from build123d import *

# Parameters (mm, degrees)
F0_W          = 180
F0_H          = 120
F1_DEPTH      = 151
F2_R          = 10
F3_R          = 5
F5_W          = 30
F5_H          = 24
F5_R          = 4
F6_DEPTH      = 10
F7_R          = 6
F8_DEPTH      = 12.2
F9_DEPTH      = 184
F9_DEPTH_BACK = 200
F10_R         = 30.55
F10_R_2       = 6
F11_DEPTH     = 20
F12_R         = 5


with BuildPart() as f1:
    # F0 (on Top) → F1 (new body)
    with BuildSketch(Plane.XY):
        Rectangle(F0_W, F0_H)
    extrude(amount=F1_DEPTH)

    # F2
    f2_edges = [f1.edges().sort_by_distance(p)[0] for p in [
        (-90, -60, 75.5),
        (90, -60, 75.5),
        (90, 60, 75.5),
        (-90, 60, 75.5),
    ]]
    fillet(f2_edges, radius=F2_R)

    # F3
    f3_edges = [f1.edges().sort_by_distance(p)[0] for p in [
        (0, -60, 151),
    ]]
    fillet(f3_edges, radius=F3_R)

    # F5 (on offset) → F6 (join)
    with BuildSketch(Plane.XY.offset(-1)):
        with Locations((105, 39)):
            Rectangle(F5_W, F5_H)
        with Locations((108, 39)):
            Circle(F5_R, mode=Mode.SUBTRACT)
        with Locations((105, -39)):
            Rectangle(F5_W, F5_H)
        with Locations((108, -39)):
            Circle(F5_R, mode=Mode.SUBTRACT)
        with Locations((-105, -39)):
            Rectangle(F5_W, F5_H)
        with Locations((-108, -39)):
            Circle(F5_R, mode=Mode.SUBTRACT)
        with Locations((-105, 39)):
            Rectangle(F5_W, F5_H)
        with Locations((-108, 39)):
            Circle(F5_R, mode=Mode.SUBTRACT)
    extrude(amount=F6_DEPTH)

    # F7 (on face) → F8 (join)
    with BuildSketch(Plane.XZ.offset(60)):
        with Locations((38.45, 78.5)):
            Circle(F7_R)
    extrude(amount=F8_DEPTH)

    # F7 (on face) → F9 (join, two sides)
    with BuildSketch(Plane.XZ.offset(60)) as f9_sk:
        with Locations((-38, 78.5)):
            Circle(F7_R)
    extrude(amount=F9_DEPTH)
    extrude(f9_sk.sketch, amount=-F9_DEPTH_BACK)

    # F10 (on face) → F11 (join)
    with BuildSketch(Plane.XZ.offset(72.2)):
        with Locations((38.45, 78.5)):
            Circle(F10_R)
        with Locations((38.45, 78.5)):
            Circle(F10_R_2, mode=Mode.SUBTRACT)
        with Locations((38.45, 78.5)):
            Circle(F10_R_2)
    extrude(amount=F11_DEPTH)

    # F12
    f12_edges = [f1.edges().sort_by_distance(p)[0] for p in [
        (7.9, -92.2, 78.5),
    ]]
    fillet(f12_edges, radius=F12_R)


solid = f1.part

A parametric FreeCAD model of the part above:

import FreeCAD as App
import Part
import Sketcher
from FreeCAD import Vector
Q = App.Units.Quantity


def edges_at(feature, points):
    """Names of the edges that pass closest to the given points."""
    edges = feature.Shape.Edges
    near = lambda p: min(range(len(edges)), key=lambda i: edges[i].distToShape(Part.Vertex(*p))[0])
    return sorted({f"Edge{near(p) + 1}" for p in points})

doc = App.newDocument("Part")
body = doc.addObject("PartDesign::Body", "Body")

# Sketch on XY plane
sketch1 = doc.addObject("Sketcher::SketchObject", "Sketch")
body.addObject(sketch1)
sketch1.AttachmentSupport = (doc.XY_Plane, [""])
sketch1.MapMode = "FlatFace"
sketch1.addGeometry([
    Part.LineSegment(Vector(-90, 60, 0), Vector(-90, -60, 0)),
    Part.LineSegment(Vector(-90, -60, 0), Vector(90, -60, 0)),
    Part.LineSegment(Vector(90, -60, 0), Vector(90, 60, 0)),
    Part.LineSegment(Vector(90, 60, 0), Vector(-90, 60, 0)),
], False)
sketch1.addConstraint([
    Sketcher.Constraint("Coincident", 0, 2, 1, 1),
    Sketcher.Constraint("Coincident", 1, 2, 2, 1),
    Sketcher.Constraint("Coincident", 2, 2, 3, 1),
    Sketcher.Constraint("Coincident", 3, 2, 0, 1),
    Sketcher.Constraint("Vertical", 0),
    Sketcher.Constraint("Horizontal", 1),
    Sketcher.Constraint("Vertical", 2),
    Sketcher.Constraint("Horizontal", 3),
    Sketcher.Constraint("Symmetric", 0, 2, 2, 2, -1, 1),
    Sketcher.Constraint("DistanceX", 1, 1, 1, 2, Q("180 mm")),
    Sketcher.Constraint("DistanceY", 0, 2, 0, 1, Q("120 mm")),
])
pad1 = doc.addObject("PartDesign::Pad", "Pad")
body.addObject(pad1)
pad1.Profile = sketch1
pad1.Length = 151
doc.recompute()

fillet = doc.addObject("PartDesign::Fillet", "Fillet")
body.addObject(fillet)
fillet.Base = (pad1, edges_at(pad1, [
    (-90, -60, 75.5),
    (90, -60, 75.5),
    (90, 60, 75.5),
    (-90, 60, 75.5),
]))
fillet.Radius = 10
doc.recompute()

fillet2 = doc.addObject("PartDesign::Fillet", "Fillet001")
body.addObject(fillet2)
fillet2.Base = (fillet, edges_at(fillet, [(0, -60, 151)]))
fillet2.Radius = 5

# Sketch on XY plane
sketch2 = doc.addObject("Sketcher::SketchObject", "Sketch001")
body.addObject(sketch2)
sketch2.AttachmentSupport = (doc.XY_Plane, [""])
sketch2.MapMode = "FlatFace"
sketch2.AttachmentOffset = App.Placement(Vector(0, 0, -1), App.Rotation())
sketch2.addGeometry([
    Part.LineSegment(Vector(90, 51, 0), Vector(90, 27, 0)),  # 0
    Part.LineSegment(Vector(90, 27, 0), Vector(120, 27, 0)),  # 1
    Part.LineSegment(Vector(120, 27, 0), Vector(120, 51, 0)),  # 2
    Part.LineSegment(Vector(120, 51, 0), Vector(90, 51, 0)),  # 3
    Part.Circle(Vector(108, 39, 0), Vector(0, 0, 1), 4),  # 4
    Part.LineSegment(Vector(90, -27, 0), Vector(90, -51, 0)),  # 5
    Part.LineSegment(Vector(90, -51, 0), Vector(120, -51, 0)),  # 6
    Part.LineSegment(Vector(120, -51, 0), Vector(120, -27, 0)),  # 7
    Part.LineSegment(Vector(120, -27, 0), Vector(90, -27, 0)),  # 8
    Part.Circle(Vector(108, -39, 0), Vector(0, 0, 1), 4),  # 9
    Part.LineSegment(Vector(-120, -27, 0), Vector(-120, -51, 0)),  # 10
    Part.LineSegment(Vector(-120, -51, 0), Vector(-90, -51, 0)),  # 11
    Part.LineSegment(Vector(-90, -51, 0), Vector(-90, -27, 0)),  # 12
    Part.LineSegment(Vector(-90, -27, 0), Vector(-120, -27, 0)),  # 13
    Part.Circle(Vector(-108, -39, 0), Vector(0, 0, 1), 4),  # 14
    Part.LineSegment(Vector(-120, 51, 0), Vector(-120, 27, 0)),  # 15
    Part.LineSegment(Vector(-120, 27, 0), Vector(-90, 27, 0)),  # 16
    Part.LineSegment(Vector(-90, 27, 0), Vector(-90, 51, 0)),  # 17
    Part.LineSegment(Vector(-90, 51, 0), Vector(-120, 51, 0)),  # 18
    Part.Circle(Vector(-108, 39, 0), Vector(0, 0, 1), 4),  # 19
], False)
sketch2.addConstraint([
    Sketcher.Constraint("Coincident", 0, 2, 1, 1),
    Sketcher.Constraint("Coincident", 1, 2, 2, 1),
    Sketcher.Constraint("Coincident", 2, 2, 3, 1),
    Sketcher.Constraint("Coincident", 3, 2, 0, 1),
    Sketcher.Constraint("Coincident", 5, 2, 6, 1),
    Sketcher.Constraint("Coincident", 6, 2, 7, 1),
    Sketcher.Constraint("Coincident", 7, 2, 8, 1),
    Sketcher.Constraint("Coincident", 8, 2, 5, 1),
    Sketcher.Constraint("Coincident", 10, 2, 11, 1),
    Sketcher.Constraint("Coincident", 11, 2, 12, 1),
    Sketcher.Constraint("Coincident", 12, 2, 13, 1),
    Sketcher.Constraint("Coincident", 13, 2, 10, 1),
    Sketcher.Constraint("Coincident", 15, 2, 16, 1),
    Sketcher.Constraint("Coincident", 16, 2, 17, 1),
    Sketcher.Constraint("Coincident", 17, 2, 18, 1),
    Sketcher.Constraint("Coincident", 18, 2, 15, 1),
    Sketcher.Constraint("Vertical", 0),
    Sketcher.Constraint("Horizontal", 1),
    Sketcher.Constraint("Vertical", 2),
    Sketcher.Constraint("Horizontal", 3),
    Sketcher.Constraint("Vertical", 5),
    Sketcher.Constraint("Horizontal", 6),
    Sketcher.Constraint("Vertical", 7),
    Sketcher.Constraint("Horizontal", 8),
    Sketcher.Constraint("Vertical", 10),
    Sketcher.Constraint("Horizontal", 11),
    Sketcher.Constraint("Vertical", 12),
    Sketcher.Constraint("Horizontal", 13),
    Sketcher.Constraint("Vertical", 15),
    Sketcher.Constraint("Horizontal", 16),
    Sketcher.Constraint("Vertical", 17),
    Sketcher.Constraint("Horizontal", 18),
    Sketcher.Constraint("Equal", 4, 9),
    Sketcher.Constraint("Equal", 9, 14),
    Sketcher.Constraint("Equal", 14, 19),
    Sketcher.Constraint("Symmetric", 4, 3, 14, 3, -1, 1),
    Sketcher.Constraint("Symmetric", 9, 3, 19, 3, -1, 1),
    Sketcher.Constraint("Symmetric", 2, 2, 10, 2, -1, 1),
    Sketcher.Constraint("Symmetric", 0, 2, 12, 2, -1, 1),
    Sketcher.Constraint("Symmetric", 7, 2, 15, 2, -1, 1),
    Sketcher.Constraint("Symmetric", 5, 2, 17, 2, -1, 1),
    Sketcher.Constraint("Symmetric", 9, 3, 14, 3, -2),
    Sketcher.Constraint("Symmetric", 6, 2, 10, 2, -2),
    Sketcher.Constraint("Symmetric", 8, 2, 12, 2, -2),
    Sketcher.Constraint("Diameter", 4, Q("8 mm")),
    Sketcher.Constraint("DistanceX", 1, 1, 1, 2, Q("30 mm")),
    Sketcher.Constraint("DistanceY", 0, 2, 0, 1, Q("24 mm")),
    Sketcher.Constraint("DistanceX", -1, 1, 4, 3, Q("108 mm")),
    Sketcher.Constraint("DistanceY", -1, 1, 4, 3, Q("39 mm")),
    Sketcher.Constraint("DistanceX", -1, 1, 0, 2, Q("90 mm")),
    Sketcher.Constraint("DistanceY", -1, 1, 0, 2, Q("27 mm")),
])
pad2 = doc.addObject("PartDesign::Pad", "Pad001")
body.addObject(pad2)
pad2.Profile = sketch2
pad2.Length = 10

# Sketch on XZ plane
sketch3 = doc.addObject("Sketcher::SketchObject", "Sketch002")
body.addObject(sketch3)
sketch3.AttachmentSupport = (doc.XZ_Plane, [""])
sketch3.MapMode = "FlatFace"
sketch3.AttachmentOffset = App.Placement(Vector(0, 0, 60), App.Rotation())
sketch3.addGeometry(Part.Circle(Vector(38, 78, 0), Vector(0, 0, 1), 6), False)
sketch3.addConstraint([
    Sketcher.Constraint("Diameter", 0, Q("12 mm")),
    Sketcher.Constraint("DistanceY", -1, 1, 0, 3, Q("78.5 mm")),
    Sketcher.Constraint("DistanceX", -1, 1, 0, 3, Q("38.45 mm")),
])
pad3 = doc.addObject("PartDesign::Pad", "Pad002")
body.addObject(pad3)
pad3.Profile = sketch3
pad3.Length = 12.2

# Sketch on XZ plane
sketch4 = doc.addObject("Sketcher::SketchObject", "Sketch003")
body.addObject(sketch4)
sketch4.AttachmentSupport = (doc.XZ_Plane, [""])
sketch4.MapMode = "FlatFace"
sketch4.AttachmentOffset = App.Placement(Vector(0, 0, 60), App.Rotation())
sketch4.addGeometry(Part.Circle(Vector(-38, 78, 0), Vector(0, 0, 1), 6), False)
sketch4.addConstraint([
    Sketcher.Constraint("Diameter", 0, Q("12 mm")),
    Sketcher.Constraint("DistanceX", 0, 3, -1, 1, Q("38 mm")),
    Sketcher.Constraint("DistanceY", -1, 1, 0, 3, Q("78.5 mm")),
])
pad4 = doc.addObject("PartDesign::Pad", "Pad003")
body.addObject(pad4)
pad4.Profile = sketch4
pad4.Type = "TwoLengths"
pad4.Length = 184
pad4.Length2 = 200

# Sketch on XZ plane
sketch5 = doc.addObject("Sketcher::SketchObject", "Sketch004")
body.addObject(sketch5)
sketch5.AttachmentSupport = (doc.XZ_Plane, [""])
sketch5.MapMode = "FlatFace"
sketch5.AttachmentOffset = App.Placement(Vector(0, 0, 72.2), App.Rotation())
sketch5.addGeometry(Part.Circle(Vector(38, 78, 0), Vector(0, 0, 1), 31), False)
sketch5.addConstraint([
    Sketcher.Constraint("Diameter", 0, Q("61.1 mm")),
    Sketcher.Constraint("DistanceY", -1, 1, 0, 3, Q("78.5 mm")),
    Sketcher.Constraint("DistanceX", -1, 1, 0, 3, Q("38.45 mm")),
])
pad5 = doc.addObject("PartDesign::Pad", "Pad004")
body.addObject(pad5)
pad5.Profile = sketch5
pad5.Length = 20
doc.recompute()

fillet3 = doc.addObject("PartDesign::Fillet", "Fillet002")
body.addObject(fillet3)
fillet3.Base = (pad5, edges_at(pad5, [(7.9, -92.2, 78.5)]))
fillet3.Radius = 5

doc.recompute()
